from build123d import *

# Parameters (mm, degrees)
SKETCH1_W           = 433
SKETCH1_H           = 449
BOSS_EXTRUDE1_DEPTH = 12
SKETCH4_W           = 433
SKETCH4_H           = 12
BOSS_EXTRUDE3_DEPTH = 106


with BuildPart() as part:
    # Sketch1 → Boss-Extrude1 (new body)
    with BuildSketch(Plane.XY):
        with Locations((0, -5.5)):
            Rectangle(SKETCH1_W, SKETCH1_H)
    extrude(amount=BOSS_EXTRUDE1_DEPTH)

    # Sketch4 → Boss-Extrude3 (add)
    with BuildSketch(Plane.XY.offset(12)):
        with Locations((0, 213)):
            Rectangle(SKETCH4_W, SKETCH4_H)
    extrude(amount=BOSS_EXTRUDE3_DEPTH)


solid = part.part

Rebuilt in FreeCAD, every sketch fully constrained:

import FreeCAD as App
import Part
import Sketcher

V = App.Vector
Q = App.Units.Quantity

doc = App.newDocument("Part")
body = doc.addObject("PartDesign::Body", "Body")

# Sketch on XY plane
sketch1 = doc.addObject("Sketcher::SketchObject", "Sketch")
body.addObject(sketch1)
sketch1.AttachmentSupport = (doc.XY_Plane, [""])
sketch1.MapMode = "FlatFace"
sketch1.addGeometry([
    Part.LineSegment(V(-216.5, 219, 0), V(-216.5, -230, 0)),
    Part.LineSegment(V(-216.5, -230, 0), V(216.5, -230, 0)),
    Part.LineSegment(V(216.5, -230, 0), V(216.5, 219, 0)),
    Part.LineSegment(V(216.5, 219, 0), V(-216.5, 219, 0)),
], False)
sketch1.addConstraint([
    Sketcher.Constraint("Coincident", 0, 2, 1, 1),
    Sketcher.Constraint("Coincident", 1, 2, 2, 1),
    Sketcher.Constraint("Coincident", 2, 2, 3, 1),
    Sketcher.Constraint("Coincident", 3, 2, 0, 1),
    Sketcher.Constraint("Vertical", 0),
    Sketcher.Constraint("Horizontal", 1),
    Sketcher.Constraint("Vertical", 2),
    Sketcher.Constraint("Horizontal", 3),
    Sketcher.Constraint("DistanceX", 1, 1, 1, 2, Q("433 mm")),
    Sketcher.Constraint("DistanceY", 0, 2, 0, 1, Q("449 mm")),
    Sketcher.Constraint("DistanceY", 0, 2, -1, 1, Q("230 mm")),
    Sketcher.Constraint("DistanceX", 0, 2, -1, 1, Q("216.5 mm")),
])
pad1 = doc.addObject("PartDesign::Pad", "Pad")
body.addObject(pad1)
pad1.Profile = sketch1
pad1.Length = 12

# Sketch on XY plane
sketch2 = doc.addObject("Sketcher::SketchObject", "Sketch001")
body.addObject(sketch2)
sketch2.AttachmentSupport = (doc.XY_Plane, [""])
sketch2.MapMode = "FlatFace"
sketch2.AttachmentOffset = App.Placement(V(0, 0, 12), App.Rotation())
sketch2.addGeometry([
    Part.LineSegment(V(-216.5, 219, 0), V(-216.5, 207, 0)),
    Part.LineSegment(V(-216.5, 207, 0), V(216.5, 207, 0)),
    Part.LineSegment(V(216.5, 207, 0), V(216.5, 219, 0)),
    Part.LineSegment(V(216.5, 219, 0), V(-216.5, 219, 0)),
], False)
sketch2.addConstraint([
    Sketcher.Constraint("Coincident", 0, 2, 1, 1),
    Sketcher.Constraint("Coincident", 1, 2, 2, 1),
    Sketcher.Constraint("Coincident", 2, 2, 3, 1),
    Sketcher.Constraint("Coincident", 3, 2, 0, 1),
    Sketcher.Constraint("Vertical", 0),
    Sketcher.Constraint("Horizontal", 1),
    Sketcher.Constraint("Vertical", 2),
    Sketcher.Constraint("Horizontal", 3),
    Sketcher.Constraint("DistanceX", 1, 1, 1, 2, Q("433 mm")),
    Sketcher.Constraint("DistanceY", 0, 2, 0, 1, Q("12 mm")),
    Sketcher.Constraint("DistanceY", -1, 1, 0, 2, Q("207 mm")),
    Sketcher.Constraint("DistanceX", 0, 2, -1, 1, Q("216.5 mm")),
])
pad2 = doc.addObject("PartDesign::Pad", "Pad001")
body.addObject(pad2)
pad2.Profile = sketch2
pad2.Length = 106

doc.recompute()
